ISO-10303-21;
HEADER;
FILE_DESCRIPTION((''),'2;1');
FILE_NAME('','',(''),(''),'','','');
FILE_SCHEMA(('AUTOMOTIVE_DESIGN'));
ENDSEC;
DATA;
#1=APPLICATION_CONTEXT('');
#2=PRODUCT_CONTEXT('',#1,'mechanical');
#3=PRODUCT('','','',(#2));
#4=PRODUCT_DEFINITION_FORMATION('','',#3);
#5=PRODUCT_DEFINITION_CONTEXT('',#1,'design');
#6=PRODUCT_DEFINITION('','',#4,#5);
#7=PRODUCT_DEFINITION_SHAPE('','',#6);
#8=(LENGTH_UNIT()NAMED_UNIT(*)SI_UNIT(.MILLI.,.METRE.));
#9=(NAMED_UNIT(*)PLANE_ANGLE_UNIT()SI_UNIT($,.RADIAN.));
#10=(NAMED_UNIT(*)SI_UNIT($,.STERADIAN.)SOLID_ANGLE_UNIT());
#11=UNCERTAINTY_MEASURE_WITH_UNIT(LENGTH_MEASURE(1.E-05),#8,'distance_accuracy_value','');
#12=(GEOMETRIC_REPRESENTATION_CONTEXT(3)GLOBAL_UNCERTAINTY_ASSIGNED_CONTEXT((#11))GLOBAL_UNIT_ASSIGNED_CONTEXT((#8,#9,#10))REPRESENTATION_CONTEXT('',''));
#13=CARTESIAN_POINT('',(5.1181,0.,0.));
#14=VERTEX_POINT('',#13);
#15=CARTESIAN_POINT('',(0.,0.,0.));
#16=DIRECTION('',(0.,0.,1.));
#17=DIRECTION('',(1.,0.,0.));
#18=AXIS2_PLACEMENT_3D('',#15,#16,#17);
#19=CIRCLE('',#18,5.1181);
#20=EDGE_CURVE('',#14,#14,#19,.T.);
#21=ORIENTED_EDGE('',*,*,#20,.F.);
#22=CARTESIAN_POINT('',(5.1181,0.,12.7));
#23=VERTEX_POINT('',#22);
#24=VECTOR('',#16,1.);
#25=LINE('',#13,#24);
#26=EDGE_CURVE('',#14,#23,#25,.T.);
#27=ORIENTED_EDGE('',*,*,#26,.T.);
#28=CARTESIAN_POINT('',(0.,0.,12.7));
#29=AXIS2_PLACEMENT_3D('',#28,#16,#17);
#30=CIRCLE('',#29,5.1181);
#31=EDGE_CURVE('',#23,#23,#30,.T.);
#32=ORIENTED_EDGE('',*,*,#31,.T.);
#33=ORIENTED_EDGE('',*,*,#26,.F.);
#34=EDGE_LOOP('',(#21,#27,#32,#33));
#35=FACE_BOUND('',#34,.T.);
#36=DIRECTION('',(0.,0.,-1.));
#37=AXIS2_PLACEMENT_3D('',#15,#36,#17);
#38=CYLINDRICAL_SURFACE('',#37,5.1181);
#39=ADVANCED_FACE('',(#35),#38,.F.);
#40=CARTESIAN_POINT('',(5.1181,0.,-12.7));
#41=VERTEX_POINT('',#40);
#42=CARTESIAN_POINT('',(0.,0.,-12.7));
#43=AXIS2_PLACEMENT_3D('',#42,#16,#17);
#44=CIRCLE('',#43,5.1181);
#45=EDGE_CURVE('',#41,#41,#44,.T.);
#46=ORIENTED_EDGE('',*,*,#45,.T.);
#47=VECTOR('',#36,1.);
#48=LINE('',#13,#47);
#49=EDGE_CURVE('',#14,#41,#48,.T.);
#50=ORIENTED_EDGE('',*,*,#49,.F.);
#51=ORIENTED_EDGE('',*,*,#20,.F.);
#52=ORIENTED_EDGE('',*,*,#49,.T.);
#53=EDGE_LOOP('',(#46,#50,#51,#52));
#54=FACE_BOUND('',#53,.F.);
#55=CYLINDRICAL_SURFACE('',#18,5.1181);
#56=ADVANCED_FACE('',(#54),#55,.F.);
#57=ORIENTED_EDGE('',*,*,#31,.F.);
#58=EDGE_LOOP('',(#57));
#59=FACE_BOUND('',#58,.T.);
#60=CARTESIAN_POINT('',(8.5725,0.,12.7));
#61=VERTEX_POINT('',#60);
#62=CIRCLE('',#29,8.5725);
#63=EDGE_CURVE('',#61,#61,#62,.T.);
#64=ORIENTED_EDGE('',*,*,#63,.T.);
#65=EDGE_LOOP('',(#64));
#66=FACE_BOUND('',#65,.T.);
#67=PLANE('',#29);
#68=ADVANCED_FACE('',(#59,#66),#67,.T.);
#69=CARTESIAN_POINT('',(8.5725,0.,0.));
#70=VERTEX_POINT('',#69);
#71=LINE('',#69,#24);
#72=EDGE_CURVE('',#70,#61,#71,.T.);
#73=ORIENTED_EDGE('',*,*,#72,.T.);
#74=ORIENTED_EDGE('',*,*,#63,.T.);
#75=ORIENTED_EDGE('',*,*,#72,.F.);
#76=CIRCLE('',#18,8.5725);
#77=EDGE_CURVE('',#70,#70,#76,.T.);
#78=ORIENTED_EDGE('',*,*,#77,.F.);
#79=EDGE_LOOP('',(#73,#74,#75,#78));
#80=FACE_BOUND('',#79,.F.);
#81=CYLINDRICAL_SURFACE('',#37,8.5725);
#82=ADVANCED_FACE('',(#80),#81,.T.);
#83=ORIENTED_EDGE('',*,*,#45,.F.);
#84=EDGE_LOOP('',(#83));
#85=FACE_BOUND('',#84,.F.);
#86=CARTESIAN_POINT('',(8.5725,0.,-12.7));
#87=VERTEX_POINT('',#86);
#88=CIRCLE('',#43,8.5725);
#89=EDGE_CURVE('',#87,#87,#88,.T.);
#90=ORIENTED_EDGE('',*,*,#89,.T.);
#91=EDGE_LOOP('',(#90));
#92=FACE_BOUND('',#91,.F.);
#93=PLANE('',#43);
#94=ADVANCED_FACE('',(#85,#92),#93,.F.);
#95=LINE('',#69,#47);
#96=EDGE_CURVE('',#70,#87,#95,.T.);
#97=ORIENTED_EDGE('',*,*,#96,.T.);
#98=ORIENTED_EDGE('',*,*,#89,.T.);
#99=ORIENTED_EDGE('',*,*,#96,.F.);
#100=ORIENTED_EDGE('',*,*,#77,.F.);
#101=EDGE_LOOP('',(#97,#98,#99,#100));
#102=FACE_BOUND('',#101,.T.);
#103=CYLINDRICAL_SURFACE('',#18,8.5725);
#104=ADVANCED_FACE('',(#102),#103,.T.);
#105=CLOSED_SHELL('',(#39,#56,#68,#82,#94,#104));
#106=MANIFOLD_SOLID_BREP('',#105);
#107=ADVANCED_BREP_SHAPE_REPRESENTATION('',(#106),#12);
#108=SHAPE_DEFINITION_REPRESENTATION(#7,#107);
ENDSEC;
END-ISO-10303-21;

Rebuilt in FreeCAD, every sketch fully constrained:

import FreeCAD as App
import Part
import Sketcher
from FreeCAD import Vector
Q = App.Units.Quantity

doc = App.newDocument("Part")
body = doc.addObject("PartDesign::Body", "Body")

# Sketch on XY plane
sketch1 = body.newObject("Sketcher::SketchObject", "Sketch")
sketch1.AttachmentSupport = (doc.getObject("XY_Plane"), [""])
sketch1.MapMode = "FlatFace"
sketch1.addGeometry([
    Part.Circle(Vector(0, 0, 0), Vector(0, 0, 1), 8.5725),
    Part.Circle(Vector(0, 0, 0), Vector(0, 0, 1), 5.1181),
], False)
sketch1.addConstraint([
    Sketcher.Constraint("Coincident", 0, 3, -1, 1),
    Sketcher.Constraint("Coincident", 1, 3, -1, 1),
    Sketcher.Constraint("Diameter", 0, Q("0.675 in")),
    Sketcher.Constraint("Diameter", 1, Q("0.403 in")),
])
pad1 = body.newObject("PartDesign::Pad", "Pad")
pad1.Profile = sketch1
pad1.Length = Q("1 in")
pad1.Midplane = True

doc.recompute()
